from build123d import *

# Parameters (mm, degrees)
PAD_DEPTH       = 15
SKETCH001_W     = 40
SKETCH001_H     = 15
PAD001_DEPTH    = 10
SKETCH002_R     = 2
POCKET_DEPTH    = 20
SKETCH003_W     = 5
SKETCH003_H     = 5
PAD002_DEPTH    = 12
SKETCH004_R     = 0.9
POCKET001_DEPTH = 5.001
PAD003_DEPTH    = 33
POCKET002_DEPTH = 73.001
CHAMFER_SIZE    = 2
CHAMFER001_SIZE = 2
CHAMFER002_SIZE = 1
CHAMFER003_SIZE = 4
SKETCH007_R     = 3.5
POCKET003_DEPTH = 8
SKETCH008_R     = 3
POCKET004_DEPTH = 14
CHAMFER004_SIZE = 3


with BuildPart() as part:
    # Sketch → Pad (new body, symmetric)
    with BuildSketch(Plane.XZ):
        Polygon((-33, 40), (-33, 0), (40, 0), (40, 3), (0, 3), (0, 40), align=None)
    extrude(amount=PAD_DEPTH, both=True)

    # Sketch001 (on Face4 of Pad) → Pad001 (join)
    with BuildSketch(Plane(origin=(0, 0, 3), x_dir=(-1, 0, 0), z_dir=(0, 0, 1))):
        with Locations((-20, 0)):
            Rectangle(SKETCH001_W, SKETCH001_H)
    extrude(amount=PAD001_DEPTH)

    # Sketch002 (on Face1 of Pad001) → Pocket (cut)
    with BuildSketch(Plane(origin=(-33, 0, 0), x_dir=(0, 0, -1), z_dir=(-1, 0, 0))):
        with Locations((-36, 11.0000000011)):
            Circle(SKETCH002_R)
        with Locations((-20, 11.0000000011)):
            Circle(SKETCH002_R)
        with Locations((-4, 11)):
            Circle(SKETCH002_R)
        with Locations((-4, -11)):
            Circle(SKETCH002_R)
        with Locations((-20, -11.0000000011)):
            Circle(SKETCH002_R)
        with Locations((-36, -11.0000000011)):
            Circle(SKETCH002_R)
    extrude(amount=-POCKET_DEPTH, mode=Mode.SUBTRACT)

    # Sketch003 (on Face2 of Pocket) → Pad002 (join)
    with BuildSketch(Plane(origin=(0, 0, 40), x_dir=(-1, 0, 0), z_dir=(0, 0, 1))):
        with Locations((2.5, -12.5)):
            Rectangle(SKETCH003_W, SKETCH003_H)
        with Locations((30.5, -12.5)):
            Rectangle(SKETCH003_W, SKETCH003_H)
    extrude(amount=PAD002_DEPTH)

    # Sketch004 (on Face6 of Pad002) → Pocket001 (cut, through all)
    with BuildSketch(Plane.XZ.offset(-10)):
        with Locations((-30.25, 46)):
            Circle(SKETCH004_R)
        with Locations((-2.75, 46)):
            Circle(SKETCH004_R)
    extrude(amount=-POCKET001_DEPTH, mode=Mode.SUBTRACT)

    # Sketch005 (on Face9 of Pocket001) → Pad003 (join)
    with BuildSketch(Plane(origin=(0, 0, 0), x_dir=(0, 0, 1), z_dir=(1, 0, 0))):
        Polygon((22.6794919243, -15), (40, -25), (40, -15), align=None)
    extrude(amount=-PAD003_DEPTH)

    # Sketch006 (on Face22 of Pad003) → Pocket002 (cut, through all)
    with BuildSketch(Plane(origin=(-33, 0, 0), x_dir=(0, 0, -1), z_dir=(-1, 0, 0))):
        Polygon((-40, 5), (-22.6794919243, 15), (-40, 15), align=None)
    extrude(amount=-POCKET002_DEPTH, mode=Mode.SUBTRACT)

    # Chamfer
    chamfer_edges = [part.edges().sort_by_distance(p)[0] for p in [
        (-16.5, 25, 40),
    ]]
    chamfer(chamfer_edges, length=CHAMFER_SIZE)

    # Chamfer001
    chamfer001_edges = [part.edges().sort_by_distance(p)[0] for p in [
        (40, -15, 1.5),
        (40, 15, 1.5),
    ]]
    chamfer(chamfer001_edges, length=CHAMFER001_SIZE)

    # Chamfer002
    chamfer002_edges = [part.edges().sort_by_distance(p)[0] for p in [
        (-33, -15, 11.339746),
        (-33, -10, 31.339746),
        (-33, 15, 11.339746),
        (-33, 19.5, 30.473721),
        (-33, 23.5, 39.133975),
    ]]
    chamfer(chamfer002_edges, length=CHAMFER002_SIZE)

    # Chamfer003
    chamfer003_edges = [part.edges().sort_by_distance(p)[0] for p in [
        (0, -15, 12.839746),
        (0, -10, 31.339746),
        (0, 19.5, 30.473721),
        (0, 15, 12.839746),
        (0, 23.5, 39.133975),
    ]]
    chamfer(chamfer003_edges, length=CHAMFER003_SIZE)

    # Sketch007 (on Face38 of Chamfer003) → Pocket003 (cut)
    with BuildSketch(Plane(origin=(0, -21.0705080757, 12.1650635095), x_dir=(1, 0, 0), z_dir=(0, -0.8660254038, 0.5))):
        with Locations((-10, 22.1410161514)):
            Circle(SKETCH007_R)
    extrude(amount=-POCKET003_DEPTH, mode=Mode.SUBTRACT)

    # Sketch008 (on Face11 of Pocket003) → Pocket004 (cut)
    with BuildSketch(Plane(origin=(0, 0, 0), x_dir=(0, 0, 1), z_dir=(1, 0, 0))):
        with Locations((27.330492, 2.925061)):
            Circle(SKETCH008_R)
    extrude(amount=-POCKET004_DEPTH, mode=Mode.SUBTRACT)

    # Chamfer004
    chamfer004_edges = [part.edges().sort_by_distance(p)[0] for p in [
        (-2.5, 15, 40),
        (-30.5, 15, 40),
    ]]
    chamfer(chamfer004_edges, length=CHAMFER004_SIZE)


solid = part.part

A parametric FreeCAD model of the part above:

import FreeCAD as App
import Part
import Sketcher
Q = App.Units.Quantity


def edges_at(feature, points):
    """Names of the edges that pass closest to the given points."""
    edges = feature.Shape.Edges
    near = lambda p: min(range(len(edges)), key=lambda i: edges[i].distToShape(Part.Vertex(*p))[0])
    return sorted({f"Edge{near(p) + 1}" for p in points})


def add_polygon(sketch, points):
    """Adds a closed chain of lines whose ends are joined by coincident constraints."""
    first, n = sketch.GeometryCount, len(points)
    for a, b in zip(points, points[1:] + points[:1]):
        sketch.addGeometry(Part.LineSegment(App.Vector(*a, 0), App.Vector(*b, 0)), False)
    for i in range(n):
        sketch.addConstraint(Sketcher.Constraint("Coincident", first + i, 2, first + (i + 1) % n, 1))

doc = App.newDocument("Part")
body = doc.addObject("PartDesign::Body", "Body")

sketch1 = body.newObject("Sketcher::SketchObject", "Sketch")
sketch1.AttachmentSupport = (doc.getObject("XZ_Plane"), [""])
sketch1.MapMode = "FlatFace"
add_polygon(sketch1, [(-33, 40), (-33, 0), (40, 0), (40, 3), (0, 3), (0, 40)])
sketch1.addConstraint([
    Sketcher.Constraint("Vertical", 0),
    Sketcher.Constraint("Horizontal", 1),
    Sketcher.Constraint("Vertical", 2),
    Sketcher.Constraint("Horizontal", 3),
    Sketcher.Constraint("Vertical", 4),
    Sketcher.Constraint("Horizontal", 5),
    Sketcher.Constraint("PointOnObject", 0, 2, -1),
    Sketcher.Constraint("PointOnObject", 3, 2, -2),
    Sketcher.Constraint("Equal", 3, 0),
    Sketcher.Constraint("DistanceX", 1, 1, 1, 2, Q("73 mm")),
    Sketcher.Constraint("DistanceX", 3, 2, 3, 1, Q("40 mm")),
    Sketcher.Constraint("DistanceY", 2, 1, 2, 2, Q("3 mm")),
])
pad1 = body.newObject("PartDesign::Pad", "Pad")
pad1.Profile = sketch1
pad1.Length = 30
pad1.Midplane = True

sketch2 = body.newObject("Sketcher::SketchObject", "Sketch001")
sketch2.AttachmentSupport = (doc.getObject("XY_Plane"), [""])
sketch2.MapMode = "FlatFace"
sketch2.AttachmentOffset = App.Placement(App.Vector(0, 0, 3), App.Rotation())
add_polygon(sketch2, [(40, -8), (40, 8), (0, 8), (0, -8)])
sketch2.addConstraint([
    Sketcher.Constraint("Vertical", 0),
    Sketcher.Constraint("Horizontal", 1),
    Sketcher.Constraint("Vertical", 2),
    Sketcher.Constraint("Horizontal", 3),
    Sketcher.Constraint("Symmetric", 1, 2, 2, 2, -1, 1),
    Sketcher.Constraint("DistanceX", 1, 2, 1, 1, Q("40 mm")),
    Sketcher.Constraint("DistanceY", 0, 1, 0, 2, Q("15 mm")),
])
pad2 = body.newObject("PartDesign::Pad", "Pad001")
pad2.Profile = sketch2
pad2.Length = 10

sketch3 = body.newObject("Sketcher::SketchObject", "Sketch002")
sketch3.AttachmentSupport = (doc.getObject("YZ_Plane"), [""])
sketch3.MapMode = "FlatFace"
sketch3.AttachmentOffset = App.Placement(App.Vector(0, 0, -33), App.Rotation())
sketch3.addGeometry([
    Part.Circle(App.Vector(-11, 36, 0), App.Vector(0, 0, 1), 2),
    Part.Circle(App.Vector(-11, 20, 0), App.Vector(0, 0, 1), 2),
    Part.Circle(App.Vector(-11, 4, 0), App.Vector(0, 0, 1), 2),
    Part.Circle(App.Vector(11, 4, 0), App.Vector(0, 0, 1), 2),
    Part.Circle(App.Vector(11, 20, 0), App.Vector(0, 0, 1), 2),
    Part.Circle(App.Vector(11, 36, 0), App.Vector(0, 0, 1), 2),
], False)
sketch3.addConstraint([
    Sketcher.Constraint("Equal", 0, 1),
    Sketcher.Constraint("Equal", 1, 2),
    Sketcher.Constraint("Equal", 2, 3),
    Sketcher.Constraint("Equal", 3, 4),
    Sketcher.Constraint("Equal", 4, 5),
    Sketcher.Constraint("Symmetric", 2, 3, 3, 3, -2),
    Sketcher.Constraint("Symmetric", 1, 3, 4, 3, -2),
    Sketcher.Constraint("Symmetric", 0, 3, 5, 3, -2),
    Sketcher.Constraint("Vertical", 0, 3, 1, 3),
    Sketcher.Constraint("Vertical", 1, 3, 2, 3),
    Sketcher.Constraint("Diameter", 0, Q("4 mm")),
    Sketcher.Constraint("DistanceX", 0, 3, -1, 1, Q("11 mm")),
    Sketcher.Constraint("DistanceY", -1, 1, 0, 3, Q("36 mm")),
    Sketcher.Constraint("DistanceY", -1, 1, 1, 3, Q("20 mm")),
    Sketcher.Constraint("DistanceY", -1, 1, 2, 3, Q("4 mm")),
])
pocket1 = body.newObject("PartDesign::Pocket", "Pocket")
pocket1.Profile = sketch3
pocket1.Length = 20
pocket1.Reversed = True

sketch4 = body.newObject("Sketcher::SketchObject", "Sketch003")
sketch4.AttachmentSupport = (doc.getObject("XY_Plane"), [""])
sketch4.MapMode = "FlatFace"
sketch4.AttachmentOffset = App.Placement(App.Vector(0, 0, 40), App.Rotation())
add_polygon(sketch4, [(0, 10), (0, 15), (-5, 15), (-5, 10)])
add_polygon(sketch4, [(-28, 10), (-28, 15), (-33, 15), (-33, 10)])
sketch4.addConstraint([
    Sketcher.Constraint("Vertical", 0),
    Sketcher.Constraint("Horizontal", 1),
    Sketcher.Constraint("Vertical", 2),
    Sketcher.Constraint("Horizontal", 3),
    Sketcher.Constraint("Vertical", 4),
    Sketcher.Constraint("Horizontal", 5),
    Sketcher.Constraint("Vertical", 6),
    Sketcher.Constraint("Horizontal", 7),
    Sketcher.Constraint("PointOnObject", 0, 2, -2),
    Sketcher.Constraint("Horizontal", 1, 2, 4, 2),
    Sketcher.Constraint("Horizontal", 3, 2, 6, 2),
    Sketcher.Constraint("Equal", 3, 5),
    Sketcher.Constraint("Equal", 7, 0),
    Sketcher.Constraint("DistanceX", 1, 2, 1, 1, Q("5 mm")),
    Sketcher.Constraint("DistanceY", -1, 1, 0, 2, Q("15 mm")),
    Sketcher.Constraint("DistanceX", 4, 2, -1, 1, Q("28 mm")),
])
pad3 = body.newObject("PartDesign::Pad", "Pad002")
pad3.Profile = sketch4
pad3.Length = 12

sketch5 = body.newObject("Sketcher::SketchObject", "Sketch004")
sketch5.AttachmentSupport = (doc.getObject("XZ_Plane"), [""])
sketch5.MapMode = "FlatFace"
sketch5.AttachmentOffset = App.Placement(App.Vector(0, 0, -10), App.Rotation())
sketch5.addGeometry([
    Part.Circle(App.Vector(-30.2, 46, 0), App.Vector(0, 0, 1), 0.9),
    Part.Circle(App.Vector(-2.8, 46, 0), App.Vector(0, 0, 1), 0.9),
], False)
sketch5.addConstraint([
    Sketcher.Constraint("Equal", 0, 1),
    Sketcher.Constraint("Horizontal", 0, 3, 1, 3),
    Sketcher.Constraint("Diameter", 0, Q("1.8 mm")),
    Sketcher.Constraint("DistanceY", -1, 1, 0, 3, Q("46 mm")),
    Sketcher.Constraint("DistanceX", 0, 3, 1, 3, Q("27.5 mm")),
    Sketcher.Constraint("DistanceX", 0, 3, -1, 1, Q("30.25 mm")),
])
pocket2 = body.newObject("PartDesign::Pocket", "Pocket001")
pocket2.Profile = sketch5
pocket2.Type = "ThroughAll"

sketch6 = body.newObject("Sketcher::SketchObject", "Sketch005")
sketch6.AttachmentSupport = (doc.getObject("YZ_Plane"), [""])
sketch6.MapMode = "FlatFace"
add_polygon(sketch6, [(15, 23), (25, 40), (15, 40)])
sketch6.addConstraint([
    Sketcher.Constraint("Horizontal", 1),
    Sketcher.Constraint("Vertical", 2),
    Sketcher.Constraint("DistanceX", 1, 2, 1, 1, Q("10 mm")),
    Sketcher.Constraint("Angle", 0, Q("60 deg")),
    Sketcher.Constraint("DistanceX", -1, 1, 0, 2, Q("25 mm")),
    Sketcher.Constraint("DistanceY", -1, 1, 0, 2, Q("40 mm")),
])
pad4 = body.newObject("PartDesign::Pad", "Pad003")
pad4.Profile = sketch6
pad4.Length = 33
pad4.Reversed = True

sketch7 = body.newObject("Sketcher::SketchObject", "Sketch006")
sketch7.AttachmentSupport = (doc.getObject("YZ_Plane"), [""])
sketch7.MapMode = "FlatFace"
sketch7.AttachmentOffset = App.Placement(App.Vector(0, 0, -33), App.Rotation())
add_polygon(sketch7, [(-5, 40), (-15, 23), (-15, 40)])
sketch7.addConstraint([
    Sketcher.Constraint("Vertical", 1),
    Sketcher.Constraint("Horizontal", 2),
    Sketcher.Constraint("DistanceX", 2, 1, 2, 2, Q("10 mm")),
    Sketcher.Constraint("Angle", 0, Q("-120 deg")),
    Sketcher.Constraint("DistanceX", 0, 2, -1, 1, Q("15 mm")),
    Sketcher.Constraint("DistanceY", -1, 1, 1, 2, Q("40 mm")),
])
pocket3 = body.newObject("PartDesign::Pocket", "Pocket002")
pocket3.Profile = sketch7
pocket3.Type = "ThroughAll"
pocket3.Reversed = True
doc.recompute()

chamfer = body.newObject("PartDesign::Chamfer", "Chamfer")
chamfer.Base = (pocket3, edges_at(pocket3, [(-16.5, 25, 40)]))
chamfer.Size = 2
doc.recompute()

chamfer2 = body.newObject("PartDesign::Chamfer", "Chamfer001")
chamfer2.Base = (chamfer, edges_at(chamfer, [(40, -15, 1.5), (40, 15, 1.5)]))
chamfer2.Size = 2
doc.recompute()

chamfer3 = body.newObject("PartDesign::Chamfer", "Chamfer002")
chamfer3.Base = (chamfer2, edges_at(chamfer2, [
    (-33, -15, 11.34),
    (-33, -10, 31.34),
    (-33, 15, 11.34),
    (-33, 19.5, 30.474),
    (-33, 23.5, 39.134),
]))
chamfer3.Size = 1
doc.recompute()

chamfer4 = body.newObject("PartDesign::Chamfer", "Chamfer003")
chamfer4.Base = (chamfer3, edges_at(chamfer3, [
    (0, -15, 12.84),
    (0, -10, 31.34),
    (0, 19.5, 30.474),
    (0, 15, 12.84),
    (0, 23.5, 39.134),
]))
chamfer4.Size = 4

sketch8 = body.newObject("Sketcher::SketchObject", "Sketch007")
sketch8.Placement = App.Placement(App.Vector(0, -21.070508, 12.165064), App.Rotation(App.Vector(1, 0, 0), App.Vector(0, 0.5, 0.866025404), App.Vector(0, -0.866025404, 0.5), "ZXY"))
sketch8.addGeometry(Part.Circle(App.Vector(-10, 22.1, 0), App.Vector(0, 0, 1), 3.5), False)
sketch8.addConstraint([
    Sketcher.Constraint("Diameter", 0, Q("7 mm")),
    Sketcher.Constraint("DistanceX", 0, 3, -1, 1, Q("10 mm")),
    Sketcher.Constraint("DistanceY", -1, 1, 0, 3, Q("22.141016 mm")),
])
pocket4 = body.newObject("PartDesign::Pocket", "Pocket003")
pocket4.Profile = sketch8
pocket4.Length = 8

sketch9 = body.newObject("Sketcher::SketchObject", "Sketch008")
sketch9.AttachmentSupport = (doc.getObject("YZ_Plane"), [""])
sketch9.MapMode = "FlatFace"
sketch9.addGeometry(Part.Circle(App.Vector(-2.9, 27.3, 0), App.Vector(0, 0, 1), 3), False)
sketch9.addConstraint([
    Sketcher.Constraint("Diameter", 0, Q("6 mm")),
    Sketcher.Constraint("DistanceX", 0, 3, -1, 1, Q("2.925061 mm")),
    Sketcher.Constraint("DistanceY", -1, 1, 0, 3, Q("27.330492 mm")),
])
pocket5 = body.newObject("PartDesign::Pocket", "Pocket004")
pocket5.Profile = sketch9
pocket5.Length = 14
doc.recompute()

chamfer5 = body.newObject("PartDesign::Chamfer", "Chamfer004")
chamfer5.Base = (pocket5, edges_at(pocket5, [(-2.5, 15, 40), (-30.5, 15, 40)]))
chamfer5.Size = 3

doc.recompute()
